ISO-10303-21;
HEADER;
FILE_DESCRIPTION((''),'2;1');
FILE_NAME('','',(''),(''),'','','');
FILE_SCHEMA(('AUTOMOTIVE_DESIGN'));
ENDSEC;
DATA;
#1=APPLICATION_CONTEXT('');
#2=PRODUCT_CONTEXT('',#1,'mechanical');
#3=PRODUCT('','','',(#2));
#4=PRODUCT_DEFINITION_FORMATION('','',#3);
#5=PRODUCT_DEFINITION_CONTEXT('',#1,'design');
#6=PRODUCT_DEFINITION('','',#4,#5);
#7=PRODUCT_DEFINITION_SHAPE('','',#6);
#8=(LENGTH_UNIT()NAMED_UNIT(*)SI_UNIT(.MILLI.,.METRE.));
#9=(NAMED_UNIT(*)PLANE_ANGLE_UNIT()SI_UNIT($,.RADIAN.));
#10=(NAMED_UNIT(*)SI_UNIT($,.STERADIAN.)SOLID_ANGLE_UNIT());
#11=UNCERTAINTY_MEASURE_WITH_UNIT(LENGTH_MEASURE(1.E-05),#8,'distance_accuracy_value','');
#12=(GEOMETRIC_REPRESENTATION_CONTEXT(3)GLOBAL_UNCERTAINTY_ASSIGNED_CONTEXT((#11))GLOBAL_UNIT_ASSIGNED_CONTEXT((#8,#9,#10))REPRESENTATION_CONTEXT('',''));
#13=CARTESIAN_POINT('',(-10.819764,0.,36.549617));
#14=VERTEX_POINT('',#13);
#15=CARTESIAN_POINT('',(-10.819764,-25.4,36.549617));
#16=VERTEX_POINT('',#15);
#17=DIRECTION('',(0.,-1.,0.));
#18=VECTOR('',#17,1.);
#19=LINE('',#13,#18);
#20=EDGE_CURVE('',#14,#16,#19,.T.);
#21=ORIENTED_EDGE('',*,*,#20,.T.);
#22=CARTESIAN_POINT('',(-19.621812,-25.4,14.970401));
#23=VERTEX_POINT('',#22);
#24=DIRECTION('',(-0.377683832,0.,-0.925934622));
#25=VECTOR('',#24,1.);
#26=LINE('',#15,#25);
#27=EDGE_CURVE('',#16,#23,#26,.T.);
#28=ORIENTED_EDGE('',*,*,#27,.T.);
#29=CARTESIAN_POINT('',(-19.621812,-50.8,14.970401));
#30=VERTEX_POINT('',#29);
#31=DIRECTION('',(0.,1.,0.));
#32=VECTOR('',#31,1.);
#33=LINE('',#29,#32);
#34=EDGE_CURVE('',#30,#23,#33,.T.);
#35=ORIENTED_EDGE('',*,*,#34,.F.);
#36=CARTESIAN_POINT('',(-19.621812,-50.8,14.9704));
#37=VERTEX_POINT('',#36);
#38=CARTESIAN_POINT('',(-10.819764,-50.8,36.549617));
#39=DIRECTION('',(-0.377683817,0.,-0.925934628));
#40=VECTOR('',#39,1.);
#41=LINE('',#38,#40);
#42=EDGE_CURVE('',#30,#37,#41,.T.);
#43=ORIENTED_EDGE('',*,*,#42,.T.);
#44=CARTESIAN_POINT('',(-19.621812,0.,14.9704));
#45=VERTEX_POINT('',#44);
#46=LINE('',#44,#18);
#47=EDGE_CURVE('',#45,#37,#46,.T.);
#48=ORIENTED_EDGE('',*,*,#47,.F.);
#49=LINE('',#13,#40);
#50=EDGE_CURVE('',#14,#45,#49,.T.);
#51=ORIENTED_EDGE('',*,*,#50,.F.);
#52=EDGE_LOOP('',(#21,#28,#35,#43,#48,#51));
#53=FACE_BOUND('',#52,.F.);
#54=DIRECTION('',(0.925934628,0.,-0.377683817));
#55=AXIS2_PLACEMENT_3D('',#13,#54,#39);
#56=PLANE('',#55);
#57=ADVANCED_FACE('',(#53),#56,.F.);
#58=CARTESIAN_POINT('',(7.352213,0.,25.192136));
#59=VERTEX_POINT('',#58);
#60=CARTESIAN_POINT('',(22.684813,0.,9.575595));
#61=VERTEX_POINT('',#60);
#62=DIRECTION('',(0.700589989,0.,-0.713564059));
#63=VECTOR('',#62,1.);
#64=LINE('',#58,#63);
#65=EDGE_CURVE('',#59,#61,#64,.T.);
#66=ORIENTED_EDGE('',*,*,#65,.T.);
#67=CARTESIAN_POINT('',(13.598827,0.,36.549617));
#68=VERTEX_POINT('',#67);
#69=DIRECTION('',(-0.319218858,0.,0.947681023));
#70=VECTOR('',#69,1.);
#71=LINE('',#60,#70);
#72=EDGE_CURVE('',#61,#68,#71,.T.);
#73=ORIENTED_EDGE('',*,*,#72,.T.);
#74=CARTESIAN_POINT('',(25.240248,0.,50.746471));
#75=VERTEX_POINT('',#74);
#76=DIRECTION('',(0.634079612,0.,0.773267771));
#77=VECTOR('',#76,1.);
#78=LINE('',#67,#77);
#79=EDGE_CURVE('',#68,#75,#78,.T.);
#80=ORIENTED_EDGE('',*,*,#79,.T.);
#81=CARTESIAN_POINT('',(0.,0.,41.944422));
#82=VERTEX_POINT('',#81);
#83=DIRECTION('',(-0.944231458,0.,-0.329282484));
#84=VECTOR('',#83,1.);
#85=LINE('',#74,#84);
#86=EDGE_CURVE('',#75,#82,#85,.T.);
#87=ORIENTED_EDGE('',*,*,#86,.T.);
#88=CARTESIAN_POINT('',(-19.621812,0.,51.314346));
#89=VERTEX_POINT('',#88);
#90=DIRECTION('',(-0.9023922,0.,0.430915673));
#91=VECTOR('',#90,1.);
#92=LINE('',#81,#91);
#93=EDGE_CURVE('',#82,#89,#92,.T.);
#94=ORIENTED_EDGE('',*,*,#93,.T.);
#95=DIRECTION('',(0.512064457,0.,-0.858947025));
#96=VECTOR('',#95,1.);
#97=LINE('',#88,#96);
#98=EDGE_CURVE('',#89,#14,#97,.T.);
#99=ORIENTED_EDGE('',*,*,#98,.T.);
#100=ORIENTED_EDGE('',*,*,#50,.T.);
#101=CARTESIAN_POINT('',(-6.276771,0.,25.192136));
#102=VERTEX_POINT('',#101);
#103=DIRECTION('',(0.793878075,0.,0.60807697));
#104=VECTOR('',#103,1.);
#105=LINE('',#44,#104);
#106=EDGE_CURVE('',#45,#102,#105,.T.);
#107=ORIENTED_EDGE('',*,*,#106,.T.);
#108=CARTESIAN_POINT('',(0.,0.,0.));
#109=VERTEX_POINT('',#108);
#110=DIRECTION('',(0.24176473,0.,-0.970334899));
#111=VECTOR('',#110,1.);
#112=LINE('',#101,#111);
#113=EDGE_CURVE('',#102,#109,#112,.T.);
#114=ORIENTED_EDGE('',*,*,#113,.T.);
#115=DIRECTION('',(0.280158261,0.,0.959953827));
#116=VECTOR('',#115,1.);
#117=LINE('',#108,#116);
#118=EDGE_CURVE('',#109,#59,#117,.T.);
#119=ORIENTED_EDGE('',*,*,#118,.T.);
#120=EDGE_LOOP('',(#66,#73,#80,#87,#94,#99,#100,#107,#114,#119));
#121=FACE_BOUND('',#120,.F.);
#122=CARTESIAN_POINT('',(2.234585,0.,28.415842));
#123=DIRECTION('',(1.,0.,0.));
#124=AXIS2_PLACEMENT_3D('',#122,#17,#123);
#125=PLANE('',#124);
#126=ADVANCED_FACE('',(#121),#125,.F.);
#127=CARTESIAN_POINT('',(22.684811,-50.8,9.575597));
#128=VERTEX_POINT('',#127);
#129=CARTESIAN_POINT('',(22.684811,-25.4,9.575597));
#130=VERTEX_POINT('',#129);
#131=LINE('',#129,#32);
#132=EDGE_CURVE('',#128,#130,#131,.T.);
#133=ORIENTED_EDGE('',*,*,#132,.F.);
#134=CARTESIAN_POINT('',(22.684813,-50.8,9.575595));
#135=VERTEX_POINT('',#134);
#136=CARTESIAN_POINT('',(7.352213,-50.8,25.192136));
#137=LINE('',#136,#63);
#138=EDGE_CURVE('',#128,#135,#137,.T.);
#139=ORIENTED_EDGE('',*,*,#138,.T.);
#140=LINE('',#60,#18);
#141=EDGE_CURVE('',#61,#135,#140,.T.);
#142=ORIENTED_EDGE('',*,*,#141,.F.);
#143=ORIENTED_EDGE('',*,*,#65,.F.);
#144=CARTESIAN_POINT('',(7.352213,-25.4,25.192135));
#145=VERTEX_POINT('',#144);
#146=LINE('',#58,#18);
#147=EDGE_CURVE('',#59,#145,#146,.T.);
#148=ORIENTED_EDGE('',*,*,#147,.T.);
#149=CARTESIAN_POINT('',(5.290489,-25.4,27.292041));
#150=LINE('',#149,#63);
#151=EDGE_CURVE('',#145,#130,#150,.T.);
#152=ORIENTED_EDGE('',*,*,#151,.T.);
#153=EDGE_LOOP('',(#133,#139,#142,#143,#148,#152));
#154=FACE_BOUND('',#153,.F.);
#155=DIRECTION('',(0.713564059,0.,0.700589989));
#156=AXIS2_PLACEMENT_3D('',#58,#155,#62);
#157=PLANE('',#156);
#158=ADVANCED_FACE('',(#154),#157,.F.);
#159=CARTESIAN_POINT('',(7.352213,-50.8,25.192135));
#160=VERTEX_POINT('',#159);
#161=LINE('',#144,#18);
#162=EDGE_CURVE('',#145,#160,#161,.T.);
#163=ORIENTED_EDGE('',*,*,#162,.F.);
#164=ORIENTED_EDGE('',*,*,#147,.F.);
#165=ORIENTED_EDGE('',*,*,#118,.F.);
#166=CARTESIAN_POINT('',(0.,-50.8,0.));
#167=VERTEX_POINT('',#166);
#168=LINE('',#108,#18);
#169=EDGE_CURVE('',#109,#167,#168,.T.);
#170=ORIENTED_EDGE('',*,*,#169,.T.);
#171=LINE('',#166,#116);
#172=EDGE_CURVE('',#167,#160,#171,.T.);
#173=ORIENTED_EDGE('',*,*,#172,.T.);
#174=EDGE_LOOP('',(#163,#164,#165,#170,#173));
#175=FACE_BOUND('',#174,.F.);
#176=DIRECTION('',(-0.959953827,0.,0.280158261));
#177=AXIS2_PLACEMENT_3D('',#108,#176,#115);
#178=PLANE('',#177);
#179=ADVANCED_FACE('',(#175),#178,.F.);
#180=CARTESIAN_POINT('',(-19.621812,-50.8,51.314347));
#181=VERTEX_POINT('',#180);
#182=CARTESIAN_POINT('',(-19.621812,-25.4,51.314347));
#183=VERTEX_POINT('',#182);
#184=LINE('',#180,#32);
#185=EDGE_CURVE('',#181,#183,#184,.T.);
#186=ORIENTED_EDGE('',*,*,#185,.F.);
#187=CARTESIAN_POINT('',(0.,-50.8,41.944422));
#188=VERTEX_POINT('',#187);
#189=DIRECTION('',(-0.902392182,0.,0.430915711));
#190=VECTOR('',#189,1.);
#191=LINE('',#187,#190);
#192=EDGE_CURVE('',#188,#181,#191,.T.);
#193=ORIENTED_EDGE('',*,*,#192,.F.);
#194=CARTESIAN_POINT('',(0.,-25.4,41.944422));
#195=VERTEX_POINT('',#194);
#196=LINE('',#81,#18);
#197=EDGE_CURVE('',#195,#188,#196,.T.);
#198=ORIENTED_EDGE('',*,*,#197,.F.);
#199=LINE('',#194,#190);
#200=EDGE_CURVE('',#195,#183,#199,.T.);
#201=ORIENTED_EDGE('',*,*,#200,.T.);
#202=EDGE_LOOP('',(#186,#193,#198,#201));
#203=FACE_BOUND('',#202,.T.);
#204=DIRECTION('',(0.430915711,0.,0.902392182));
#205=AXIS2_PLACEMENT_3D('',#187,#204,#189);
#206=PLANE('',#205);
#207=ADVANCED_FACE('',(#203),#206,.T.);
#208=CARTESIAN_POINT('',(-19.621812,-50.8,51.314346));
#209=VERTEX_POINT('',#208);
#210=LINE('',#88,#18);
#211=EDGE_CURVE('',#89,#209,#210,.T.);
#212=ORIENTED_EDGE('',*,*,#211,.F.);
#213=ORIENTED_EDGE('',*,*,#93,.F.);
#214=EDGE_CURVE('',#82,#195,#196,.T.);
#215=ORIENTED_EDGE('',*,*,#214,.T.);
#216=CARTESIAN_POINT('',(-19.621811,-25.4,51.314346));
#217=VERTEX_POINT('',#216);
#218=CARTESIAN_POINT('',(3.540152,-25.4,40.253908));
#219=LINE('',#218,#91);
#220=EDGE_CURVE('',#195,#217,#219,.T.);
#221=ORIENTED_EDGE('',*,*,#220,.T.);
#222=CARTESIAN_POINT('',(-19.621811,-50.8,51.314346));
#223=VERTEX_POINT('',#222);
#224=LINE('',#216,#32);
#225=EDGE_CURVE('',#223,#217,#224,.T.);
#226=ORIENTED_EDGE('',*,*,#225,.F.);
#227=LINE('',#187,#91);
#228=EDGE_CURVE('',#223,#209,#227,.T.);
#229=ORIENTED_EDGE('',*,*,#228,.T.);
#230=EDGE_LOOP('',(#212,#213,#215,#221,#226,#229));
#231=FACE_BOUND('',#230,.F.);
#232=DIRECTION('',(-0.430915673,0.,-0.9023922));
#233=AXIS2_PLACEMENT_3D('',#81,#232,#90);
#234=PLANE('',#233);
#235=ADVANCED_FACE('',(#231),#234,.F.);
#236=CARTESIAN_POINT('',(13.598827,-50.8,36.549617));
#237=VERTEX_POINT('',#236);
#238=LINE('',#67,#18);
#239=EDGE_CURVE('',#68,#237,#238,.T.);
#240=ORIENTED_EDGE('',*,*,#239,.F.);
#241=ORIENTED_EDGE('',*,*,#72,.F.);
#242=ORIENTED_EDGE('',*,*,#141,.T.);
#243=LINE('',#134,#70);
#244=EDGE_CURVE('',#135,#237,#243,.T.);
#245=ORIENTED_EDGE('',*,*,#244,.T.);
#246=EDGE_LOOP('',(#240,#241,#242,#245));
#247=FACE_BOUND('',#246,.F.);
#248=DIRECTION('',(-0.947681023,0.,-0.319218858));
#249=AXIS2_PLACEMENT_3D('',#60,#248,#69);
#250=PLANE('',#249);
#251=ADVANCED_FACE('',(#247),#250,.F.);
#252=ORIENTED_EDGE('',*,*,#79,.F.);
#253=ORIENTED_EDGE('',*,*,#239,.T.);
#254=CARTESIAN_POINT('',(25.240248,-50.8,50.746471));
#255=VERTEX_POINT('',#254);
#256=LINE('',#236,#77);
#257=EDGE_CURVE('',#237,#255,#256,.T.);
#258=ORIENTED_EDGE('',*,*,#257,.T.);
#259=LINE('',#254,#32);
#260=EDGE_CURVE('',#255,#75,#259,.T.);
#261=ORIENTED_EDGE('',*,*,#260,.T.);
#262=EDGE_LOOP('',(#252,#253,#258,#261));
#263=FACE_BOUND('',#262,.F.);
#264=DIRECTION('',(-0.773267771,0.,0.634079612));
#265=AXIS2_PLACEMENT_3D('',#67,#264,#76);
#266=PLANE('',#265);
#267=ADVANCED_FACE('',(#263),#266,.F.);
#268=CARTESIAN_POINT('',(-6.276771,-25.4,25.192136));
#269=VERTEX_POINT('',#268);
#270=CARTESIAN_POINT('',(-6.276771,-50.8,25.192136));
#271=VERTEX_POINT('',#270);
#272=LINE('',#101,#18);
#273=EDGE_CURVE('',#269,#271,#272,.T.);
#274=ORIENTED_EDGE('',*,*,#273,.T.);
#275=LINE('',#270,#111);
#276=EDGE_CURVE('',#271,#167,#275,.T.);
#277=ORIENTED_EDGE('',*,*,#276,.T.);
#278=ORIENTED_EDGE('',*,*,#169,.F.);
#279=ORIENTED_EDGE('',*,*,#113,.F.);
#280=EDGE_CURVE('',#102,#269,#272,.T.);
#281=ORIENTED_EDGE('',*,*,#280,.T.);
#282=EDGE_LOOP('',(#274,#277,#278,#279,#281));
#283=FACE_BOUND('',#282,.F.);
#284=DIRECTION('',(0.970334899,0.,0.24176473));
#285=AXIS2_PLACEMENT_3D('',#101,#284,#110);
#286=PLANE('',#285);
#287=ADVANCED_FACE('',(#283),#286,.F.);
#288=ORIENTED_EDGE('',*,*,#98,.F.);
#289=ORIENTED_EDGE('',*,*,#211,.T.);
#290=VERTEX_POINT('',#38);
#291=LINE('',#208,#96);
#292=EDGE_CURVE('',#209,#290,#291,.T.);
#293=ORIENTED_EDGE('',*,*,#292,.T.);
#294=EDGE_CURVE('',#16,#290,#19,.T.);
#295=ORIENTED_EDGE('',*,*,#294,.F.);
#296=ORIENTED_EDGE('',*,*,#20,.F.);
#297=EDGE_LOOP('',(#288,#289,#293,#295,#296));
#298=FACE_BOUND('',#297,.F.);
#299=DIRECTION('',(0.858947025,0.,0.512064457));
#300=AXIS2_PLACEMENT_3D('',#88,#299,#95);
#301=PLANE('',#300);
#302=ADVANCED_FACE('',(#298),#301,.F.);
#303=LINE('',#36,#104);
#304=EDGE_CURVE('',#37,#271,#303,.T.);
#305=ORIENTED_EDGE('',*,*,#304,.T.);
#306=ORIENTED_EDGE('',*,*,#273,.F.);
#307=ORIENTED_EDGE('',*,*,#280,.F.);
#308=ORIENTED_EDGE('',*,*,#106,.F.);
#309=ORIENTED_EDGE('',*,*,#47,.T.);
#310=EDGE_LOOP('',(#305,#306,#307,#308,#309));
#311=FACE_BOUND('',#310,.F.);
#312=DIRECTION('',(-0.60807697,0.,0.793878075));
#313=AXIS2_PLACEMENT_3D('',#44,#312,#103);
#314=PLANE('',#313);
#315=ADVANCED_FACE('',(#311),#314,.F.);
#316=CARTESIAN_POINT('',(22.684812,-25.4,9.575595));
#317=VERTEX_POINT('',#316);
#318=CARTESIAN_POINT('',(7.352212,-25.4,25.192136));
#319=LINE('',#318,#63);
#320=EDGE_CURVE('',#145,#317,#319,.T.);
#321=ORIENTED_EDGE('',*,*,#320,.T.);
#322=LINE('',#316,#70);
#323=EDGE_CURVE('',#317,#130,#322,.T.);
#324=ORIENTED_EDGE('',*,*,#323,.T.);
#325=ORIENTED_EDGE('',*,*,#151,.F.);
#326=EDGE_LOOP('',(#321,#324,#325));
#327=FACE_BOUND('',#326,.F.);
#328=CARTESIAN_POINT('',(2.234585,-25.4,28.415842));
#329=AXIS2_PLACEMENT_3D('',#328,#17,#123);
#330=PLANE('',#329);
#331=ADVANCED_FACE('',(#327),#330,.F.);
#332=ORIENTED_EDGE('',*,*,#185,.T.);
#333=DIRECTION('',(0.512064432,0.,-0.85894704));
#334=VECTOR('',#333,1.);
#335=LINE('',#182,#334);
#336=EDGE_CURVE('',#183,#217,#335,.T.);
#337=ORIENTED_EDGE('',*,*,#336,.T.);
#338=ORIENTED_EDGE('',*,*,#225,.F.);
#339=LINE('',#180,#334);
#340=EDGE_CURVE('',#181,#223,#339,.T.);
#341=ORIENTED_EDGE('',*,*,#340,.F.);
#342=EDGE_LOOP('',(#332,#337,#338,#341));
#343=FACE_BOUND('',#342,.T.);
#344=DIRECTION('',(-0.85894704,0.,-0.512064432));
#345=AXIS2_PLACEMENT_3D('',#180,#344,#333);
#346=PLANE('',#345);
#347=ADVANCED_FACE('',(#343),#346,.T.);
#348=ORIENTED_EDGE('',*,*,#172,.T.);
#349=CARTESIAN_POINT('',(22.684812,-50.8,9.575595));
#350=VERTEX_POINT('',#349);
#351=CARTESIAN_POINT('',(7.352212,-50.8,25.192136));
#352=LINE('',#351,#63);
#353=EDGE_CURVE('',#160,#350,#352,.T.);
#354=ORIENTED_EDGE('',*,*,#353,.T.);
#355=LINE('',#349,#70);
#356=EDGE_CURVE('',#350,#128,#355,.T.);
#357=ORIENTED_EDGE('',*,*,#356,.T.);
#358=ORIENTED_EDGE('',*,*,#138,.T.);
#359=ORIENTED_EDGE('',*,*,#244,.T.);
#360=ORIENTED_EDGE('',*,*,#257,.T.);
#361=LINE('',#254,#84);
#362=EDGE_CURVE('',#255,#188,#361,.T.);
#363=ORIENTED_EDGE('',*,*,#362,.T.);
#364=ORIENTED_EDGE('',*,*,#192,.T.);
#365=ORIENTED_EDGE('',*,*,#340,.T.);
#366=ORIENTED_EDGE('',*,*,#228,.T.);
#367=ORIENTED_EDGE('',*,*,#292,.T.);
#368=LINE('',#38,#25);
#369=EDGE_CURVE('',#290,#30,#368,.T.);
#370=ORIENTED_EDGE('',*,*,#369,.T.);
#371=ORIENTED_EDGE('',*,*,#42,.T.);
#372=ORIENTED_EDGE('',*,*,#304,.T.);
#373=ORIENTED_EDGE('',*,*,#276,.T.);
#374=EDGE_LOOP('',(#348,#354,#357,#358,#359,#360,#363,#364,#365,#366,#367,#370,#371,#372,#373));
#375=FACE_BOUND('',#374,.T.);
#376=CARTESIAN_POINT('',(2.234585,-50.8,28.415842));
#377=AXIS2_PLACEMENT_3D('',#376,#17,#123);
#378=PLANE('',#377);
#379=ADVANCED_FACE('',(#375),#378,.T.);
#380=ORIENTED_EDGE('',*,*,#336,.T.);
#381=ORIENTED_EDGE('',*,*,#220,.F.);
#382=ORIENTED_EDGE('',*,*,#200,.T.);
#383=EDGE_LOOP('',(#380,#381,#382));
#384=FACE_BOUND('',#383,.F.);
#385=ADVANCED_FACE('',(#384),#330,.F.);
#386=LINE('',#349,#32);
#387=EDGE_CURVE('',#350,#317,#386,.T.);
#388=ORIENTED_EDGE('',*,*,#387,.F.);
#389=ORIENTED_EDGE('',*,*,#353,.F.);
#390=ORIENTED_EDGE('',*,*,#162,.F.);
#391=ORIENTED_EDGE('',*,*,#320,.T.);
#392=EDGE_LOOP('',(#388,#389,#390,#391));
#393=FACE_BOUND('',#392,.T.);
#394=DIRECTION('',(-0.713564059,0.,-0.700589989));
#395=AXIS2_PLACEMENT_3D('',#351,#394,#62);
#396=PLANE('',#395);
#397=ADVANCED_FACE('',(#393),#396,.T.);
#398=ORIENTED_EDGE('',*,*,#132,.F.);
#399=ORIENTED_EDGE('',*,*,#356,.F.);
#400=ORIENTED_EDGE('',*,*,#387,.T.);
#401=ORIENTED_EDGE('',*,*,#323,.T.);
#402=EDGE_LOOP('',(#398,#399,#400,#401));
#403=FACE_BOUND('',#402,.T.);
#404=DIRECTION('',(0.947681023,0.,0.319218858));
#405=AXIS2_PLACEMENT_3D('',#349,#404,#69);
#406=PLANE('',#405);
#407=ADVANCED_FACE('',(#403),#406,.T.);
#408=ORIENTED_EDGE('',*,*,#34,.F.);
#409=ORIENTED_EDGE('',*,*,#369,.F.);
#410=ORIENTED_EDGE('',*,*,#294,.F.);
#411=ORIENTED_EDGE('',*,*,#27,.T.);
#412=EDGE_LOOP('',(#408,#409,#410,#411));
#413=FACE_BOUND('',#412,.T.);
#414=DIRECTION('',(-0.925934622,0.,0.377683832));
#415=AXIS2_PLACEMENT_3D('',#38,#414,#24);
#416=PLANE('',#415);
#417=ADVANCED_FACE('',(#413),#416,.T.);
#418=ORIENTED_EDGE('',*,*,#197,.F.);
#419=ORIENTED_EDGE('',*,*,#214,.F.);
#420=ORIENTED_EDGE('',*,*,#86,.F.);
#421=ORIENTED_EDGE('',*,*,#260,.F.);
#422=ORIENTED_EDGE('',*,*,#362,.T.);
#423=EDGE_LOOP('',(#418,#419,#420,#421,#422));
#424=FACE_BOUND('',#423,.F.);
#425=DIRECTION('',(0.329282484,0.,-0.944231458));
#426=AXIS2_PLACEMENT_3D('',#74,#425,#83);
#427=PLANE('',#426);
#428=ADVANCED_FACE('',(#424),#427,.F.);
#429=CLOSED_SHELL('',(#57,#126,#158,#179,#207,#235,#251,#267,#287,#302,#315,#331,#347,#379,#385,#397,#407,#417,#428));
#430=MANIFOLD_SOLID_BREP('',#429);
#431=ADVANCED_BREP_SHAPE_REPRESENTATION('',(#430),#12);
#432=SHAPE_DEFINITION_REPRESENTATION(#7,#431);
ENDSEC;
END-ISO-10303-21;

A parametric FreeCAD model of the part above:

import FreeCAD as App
import Part
import Sketcher

V = App.Vector
Q = App.Units.Quantity


def add_polygon(sketch, points):
    """Adds a closed chain of lines whose ends are joined by coincident constraints."""
    first, n = sketch.GeometryCount, len(points)
    for a, b in zip(points, points[1:] + points[:1]):
        sketch.addGeometry(Part.LineSegment(App.Vector(*a, 0), App.Vector(*b, 0)), False)
    for i in range(n):
        sketch.addConstraint(Sketcher.Constraint("Coincident", first + i, 2, first + (i + 1) % n, 1))

doc = App.newDocument("Part")
body = doc.addObject("PartDesign::Body", "Body")

# Sketch on XZ plane
sketch1 = doc.addObject("Sketcher::SketchObject", "Sketch")
body.addObject(sketch1)
sketch1.AttachmentSupport = (doc.XZ_Plane, [""])
sketch1.MapMode = "FlatFace"
add_polygon(sketch1, [(-6, 25), (0, 0), (7, 25), (23, 10), (14, 37), (25, 51), (0, 42), (-20, 51), (-11, 37), (-20, 15)])  # lines 0-9
sketch1.addConstraint(Sketcher.Constraint("Coincident", 0, 2, -1, 1))
sketch1.addConstraint(Sketcher.Constraint("PointOnObject", 5, 2, -2))
sketch1.addConstraint(Sketcher.Constraint("Horizontal", 3, 2, 7, 2))
sketch1.addConstraint(Sketcher.Constraint("Horizontal", 1, 2, 9, 2))
sketch1.addConstraint(Sketcher.Constraint("Vertical", 6, 2, 8, 2))
sketch1.addConstraint(Sketcher.Constraint("DistanceY", -1, 1, 8, 2, Q("14.9704 mm")))
sketch1.addConstraint(Sketcher.Constraint("DistanceX", 1, 2, 2, 2, Q("15.3326 mm")))
sketch1.addConstraint(Sketcher.Constraint("DistanceX", 9, 2, 3, 2, Q("19.875598 mm")))
sketch1.addConstraint(Sketcher.Constraint("Distance", 0, Q("25.962311 mm")))
sketch1.addConstraint(Sketcher.Constraint("Distance", 1, Q("26.243071 mm")))
sketch1.addConstraint(Sketcher.Constraint("Distance", 2, Q("21.885268 mm")))
sketch1.addConstraint(Sketcher.Constraint("DistanceX", -1, 1, 4, 2, Q("25.240248 mm")))
sketch1.addConstraint(Sketcher.Constraint("DistanceY", -1, 1, 4, 2, Q("50.746471 mm")))
sketch1.addConstraint(Sketcher.Constraint("DistanceX", 6, 2, -1, 1, Q("19.621812 mm")))
sketch1.addConstraint(Sketcher.Constraint("DistanceX", 9, 2, -1, 1, Q("6.276771 mm")))
sketch1.addConstraint(Sketcher.Constraint("DistanceY", 1, 2, 3, 2, Q("11.357481 mm")))
sketch1.addConstraint(Sketcher.Constraint("DistanceY", 5, 2, 4, 2, Q("8.802049 mm")))
sketch1.addConstraint(Sketcher.Constraint("DistanceY", 3, 2, 6, 2, Q("14.764729 mm")))
sketch1.addConstraint(Sketcher.Constraint("DistanceX", 7, 2, 3, 2, Q("24.418591 mm")))
pad1 = doc.addObject("PartDesign::Pad", "Pad")
body.addObject(pad1)
pad1.Profile = sketch1
pad1.Length = Q("2 in")

# Sketch on XZ plane
sketch2 = doc.addObject("Sketcher::SketchObject", "Sketch001")
body.addObject(sketch2)
sketch2.AttachmentSupport = (doc.XZ_Plane, [""])
sketch2.MapMode = "FlatFace"
sketch2.AttachmentOffset = App.Placement(V(0, 0, 2 * 25.4), App.Rotation())
add_polygon(sketch2, [(-6, 25), (0, 0), (7, 25), (23, 10), (14, 37), (25, 51), (0, 42), (-20, 51), (-11, 37), (-20, 15)])  # lines 0-9
sketch2.addConstraint(Sketcher.Constraint("Coincident", 0, 2, -1, 1))
sketch2.addConstraint(Sketcher.Constraint("PointOnObject", 5, 2, -2))
sketch2.addConstraint(Sketcher.Constraint("Horizontal", 3, 2, 7, 2))
sketch2.addConstraint(Sketcher.Constraint("Horizontal", 1, 2, 9, 2))
sketch2.addConstraint(Sketcher.Constraint("Vertical", 6, 2, 8, 2))
sketch2.addConstraint(Sketcher.Constraint("DistanceY", -1, 1, 8, 2, Q("14.970401 mm")))
sketch2.addConstraint(Sketcher.Constraint("DistanceX", 1, 2, 2, 2, Q("15.3326 mm")))
sketch2.addConstraint(Sketcher.Constraint("Distance", 0, Q("25.962311 mm")))
sketch2.addConstraint(Sketcher.Constraint("Distance", 1, Q("26.24307 mm")))
sketch2.addConstraint(Sketcher.Constraint("Distance", 2, Q("21.885268 mm")))
sketch2.addConstraint(Sketcher.Constraint("DistanceX", -1, 1, 1, 2, Q("7.352212 mm")))
sketch2.addConstraint(Sketcher.Constraint("DistanceX", -1, 1, 4, 2, Q("25.240248 mm")))
sketch2.addConstraint(Sketcher.Constraint("DistanceY", -1, 1, 4, 2, Q("50.746471 mm")))
sketch2.addConstraint(Sketcher.Constraint("DistanceX", 6, 2, -1, 1, Q("19.621812 mm")))
sketch2.addConstraint(Sketcher.Constraint("DistanceY", 1, 2, 3, 2, Q("11.357481 mm")))
sketch2.addConstraint(Sketcher.Constraint("DistanceY", 5, 2, 4, 2, Q("8.802049 mm")))
sketch2.addConstraint(Sketcher.Constraint("DistanceY", 3, 2, 6, 2, Q("14.76473 mm")))
sketch2.addConstraint(Sketcher.Constraint("DistanceX", 7, 2, 3, 2, Q("24.41859 mm")))
sketch2.addConstraint(Sketcher.Constraint("Distance", 3, Q("28.463187 mm")))
pad2 = doc.addObject("PartDesign::Pad", "Pad001")
body.addObject(pad2)
pad2.Profile = sketch2
pad2.Length = Q("1 in")
pad2.Reversed = True

doc.recompute()
